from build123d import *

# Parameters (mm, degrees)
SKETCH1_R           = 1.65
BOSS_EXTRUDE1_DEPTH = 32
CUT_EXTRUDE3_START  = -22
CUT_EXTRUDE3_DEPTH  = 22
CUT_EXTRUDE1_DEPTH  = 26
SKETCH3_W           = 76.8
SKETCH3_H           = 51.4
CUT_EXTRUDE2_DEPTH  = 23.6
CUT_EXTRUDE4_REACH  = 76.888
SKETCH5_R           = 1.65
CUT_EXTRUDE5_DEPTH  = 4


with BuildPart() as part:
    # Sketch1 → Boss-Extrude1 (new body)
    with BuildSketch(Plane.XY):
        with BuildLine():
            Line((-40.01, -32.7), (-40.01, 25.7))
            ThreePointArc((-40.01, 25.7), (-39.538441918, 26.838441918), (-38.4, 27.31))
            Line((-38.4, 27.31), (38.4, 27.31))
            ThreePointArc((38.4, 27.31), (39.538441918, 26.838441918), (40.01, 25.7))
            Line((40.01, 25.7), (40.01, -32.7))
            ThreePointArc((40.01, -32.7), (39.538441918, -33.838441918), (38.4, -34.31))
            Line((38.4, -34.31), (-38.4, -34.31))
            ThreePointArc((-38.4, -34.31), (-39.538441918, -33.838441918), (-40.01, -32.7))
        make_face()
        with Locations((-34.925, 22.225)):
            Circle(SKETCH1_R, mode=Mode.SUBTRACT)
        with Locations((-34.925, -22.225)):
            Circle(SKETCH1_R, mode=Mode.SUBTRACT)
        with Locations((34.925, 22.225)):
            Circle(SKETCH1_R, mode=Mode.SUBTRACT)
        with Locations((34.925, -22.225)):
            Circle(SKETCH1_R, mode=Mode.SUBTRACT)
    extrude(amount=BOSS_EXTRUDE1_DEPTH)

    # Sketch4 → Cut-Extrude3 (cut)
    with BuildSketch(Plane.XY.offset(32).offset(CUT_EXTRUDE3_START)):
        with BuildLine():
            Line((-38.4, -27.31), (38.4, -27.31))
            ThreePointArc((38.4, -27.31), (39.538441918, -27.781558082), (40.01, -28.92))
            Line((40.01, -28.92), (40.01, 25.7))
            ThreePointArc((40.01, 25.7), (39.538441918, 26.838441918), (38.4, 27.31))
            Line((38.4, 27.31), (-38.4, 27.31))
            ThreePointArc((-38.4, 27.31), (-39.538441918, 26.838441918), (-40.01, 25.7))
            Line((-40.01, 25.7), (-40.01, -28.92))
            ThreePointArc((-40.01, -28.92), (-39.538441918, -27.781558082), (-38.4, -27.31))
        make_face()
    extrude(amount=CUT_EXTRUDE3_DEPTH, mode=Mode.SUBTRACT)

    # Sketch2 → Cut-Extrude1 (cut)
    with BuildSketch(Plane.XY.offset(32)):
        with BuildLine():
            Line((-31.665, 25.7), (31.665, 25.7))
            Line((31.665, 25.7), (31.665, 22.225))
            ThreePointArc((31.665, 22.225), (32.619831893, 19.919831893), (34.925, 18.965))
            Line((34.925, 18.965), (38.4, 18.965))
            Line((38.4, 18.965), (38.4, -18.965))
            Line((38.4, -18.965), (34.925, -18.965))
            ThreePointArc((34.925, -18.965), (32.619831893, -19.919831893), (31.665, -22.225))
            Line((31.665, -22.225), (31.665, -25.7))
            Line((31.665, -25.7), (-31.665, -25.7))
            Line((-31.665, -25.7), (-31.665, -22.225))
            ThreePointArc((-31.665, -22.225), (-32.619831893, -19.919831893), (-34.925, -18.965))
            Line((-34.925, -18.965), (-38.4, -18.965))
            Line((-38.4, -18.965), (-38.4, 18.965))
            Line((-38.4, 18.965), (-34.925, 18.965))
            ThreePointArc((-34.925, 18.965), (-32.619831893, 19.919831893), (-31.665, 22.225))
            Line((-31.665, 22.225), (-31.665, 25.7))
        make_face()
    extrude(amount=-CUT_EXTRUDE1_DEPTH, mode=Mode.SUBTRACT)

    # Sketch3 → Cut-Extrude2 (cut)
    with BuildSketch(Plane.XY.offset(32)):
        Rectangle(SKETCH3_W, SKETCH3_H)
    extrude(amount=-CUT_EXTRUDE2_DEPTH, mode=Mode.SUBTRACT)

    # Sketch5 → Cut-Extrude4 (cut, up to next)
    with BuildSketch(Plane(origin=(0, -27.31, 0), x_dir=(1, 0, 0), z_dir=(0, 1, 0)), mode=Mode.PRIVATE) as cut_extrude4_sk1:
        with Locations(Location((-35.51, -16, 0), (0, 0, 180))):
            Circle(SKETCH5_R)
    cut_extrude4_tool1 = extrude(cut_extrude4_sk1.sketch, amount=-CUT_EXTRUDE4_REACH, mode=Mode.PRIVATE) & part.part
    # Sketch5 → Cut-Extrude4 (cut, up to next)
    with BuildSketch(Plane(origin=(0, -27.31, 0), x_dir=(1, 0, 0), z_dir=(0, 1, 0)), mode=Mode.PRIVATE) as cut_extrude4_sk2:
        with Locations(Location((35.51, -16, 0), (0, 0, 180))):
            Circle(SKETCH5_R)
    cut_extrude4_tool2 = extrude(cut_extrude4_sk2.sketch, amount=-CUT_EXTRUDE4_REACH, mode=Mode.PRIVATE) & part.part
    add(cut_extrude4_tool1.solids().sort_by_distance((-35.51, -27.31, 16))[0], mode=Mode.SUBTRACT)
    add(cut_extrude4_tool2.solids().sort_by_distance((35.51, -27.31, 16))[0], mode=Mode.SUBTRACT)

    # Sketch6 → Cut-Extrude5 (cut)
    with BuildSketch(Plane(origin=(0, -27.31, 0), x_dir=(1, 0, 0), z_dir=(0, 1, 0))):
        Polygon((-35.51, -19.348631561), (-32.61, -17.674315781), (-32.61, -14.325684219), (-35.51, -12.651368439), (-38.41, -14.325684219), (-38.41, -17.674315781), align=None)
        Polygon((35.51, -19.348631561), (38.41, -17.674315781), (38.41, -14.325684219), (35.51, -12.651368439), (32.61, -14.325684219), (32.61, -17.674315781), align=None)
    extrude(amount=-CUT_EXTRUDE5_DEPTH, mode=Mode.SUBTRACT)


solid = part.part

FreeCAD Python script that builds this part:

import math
import FreeCAD as App
import Part
import Sketcher

V = App.Vector
Q = App.Units.Quantity


def add_polygon(sketch, points):
    """Adds a closed chain of lines whose ends are joined by coincident constraints."""
    first, n = sketch.GeometryCount, len(points)
    for a, b in zip(points, points[1:] + points[:1]):
        sketch.addGeometry(Part.LineSegment(App.Vector(*a, 0), App.Vector(*b, 0)), False)
    for i in range(n):
        sketch.addConstraint(Sketcher.Constraint("Coincident", first + i, 2, first + (i + 1) % n, 1))

doc = App.newDocument("Part")
params = doc.addObject("Spreadsheet::Sheet", "Params")
for row, (alias, value) in enumerate([
    ("sketch1_diameter", "3.3 mm"),
    ("sketch1_radius", "1.61 mm"),
    ("sketch1_width", "76.8 mm"),
    ("sketch1_height", "58.4 mm"),
    ("pad1_length", "32 mm"),
    ("sketch2_radius", "1.61 mm"),
    ("sketch2_width", "76.8 mm"),
    ("sketch2_height", "54.62 mm"),
    ("pocket1_length", "22 mm"),
    ("sketch3_radius", "3.26 mm"),
    ("sketch3_width", "63.33 mm"),
    ("sketch3_height", "37.93 mm"),
    ("pocket2_length", "26 mm"),
    ("sketch4_width", "76.8 mm"),
    ("sketch4_height", "51.4 mm"),
    ("pocket3_length", "23.6 mm"),
    ("sketch5_diameter", "3.3 mm"),
    ("sketch6_diameter", "3.3 mm"),
    ("pocket6_length", "4 mm"),
], start=1):
    params.set(f"A{row}", alias)
    params.set(f"B{row}", "=" + value)
    params.setAlias(f"B{row}", alias)

body = doc.addObject("PartDesign::Body", "Body")

# Sketch on XY plane
sketch1 = body.newObject("Sketcher::SketchObject", "Sketch")
sketch1.AttachmentSupport = (doc.getObject("XY_Plane"), [""])
sketch1.MapMode = "FlatFace"
sketch1.addGeometry([
    Part.LineSegment(V(-40, 25.7, 0), V(-40, -32.7, 0)),  # 0
    Part.ArcOfCircle(Part.Circle(V(-38.4, -32.7, 0), V(0, 0, 1), 1.6), math.radians(180), math.radians(270)),  # 1
    Part.LineSegment(V(-38.4, -34.3, 0), V(38.4, -34.3, 0)),  # 2
    Part.ArcOfCircle(Part.Circle(V(38.4, -32.7, 0), V(0, 0, 1), 1.6), math.radians(-90), math.radians(0)),  # 3
    Part.LineSegment(V(40, -32.7, 0), V(40, 25.7, 0)),  # 4
    Part.ArcOfCircle(Part.Circle(V(38.4, 25.7, 0), V(0, 0, 1), 1.6), math.radians(0), math.radians(90)),  # 5
    Part.LineSegment(V(38.4, 27.3, 0), V(-38.4, 27.3, 0)),  # 6
    Part.ArcOfCircle(Part.Circle(V(-38.4, 25.7, 0), V(0, 0, 1), 1.6), math.radians(90), math.radians(180)),  # 7
    Part.Circle(V(34.9, -22.2, 0), V(0, 0, 1), 1.6),  # 8
    Part.Circle(V(-34.9, -22.2, 0), V(0, 0, 1), 1.6),  # 9
    Part.Circle(V(34.9, 22.2, 0), V(0, 0, 1), 1.6),  # 10
    Part.Circle(V(-34.9, 22.2, 0), V(0, 0, 1), 1.6),  # 11
], False)
sketch1.addConstraint([
    Sketcher.Constraint("Tangent", 0, 2, 1, 1),
    Sketcher.Constraint("Tangent", 1, 2, 2, 1),
    Sketcher.Constraint("Tangent", 2, 2, 3, 1),
    Sketcher.Constraint("Tangent", 3, 2, 4, 1),
    Sketcher.Constraint("Tangent", 4, 2, 5, 1),
    Sketcher.Constraint("Tangent", 5, 2, 6, 1),
    Sketcher.Constraint("Tangent", 6, 2, 7, 1),
    Sketcher.Constraint("Tangent", 7, 2, 0, 1),
    Sketcher.Constraint("Vertical", 0),
    Sketcher.Constraint("Horizontal", 2),
    Sketcher.Constraint("Vertical", 4),
    Sketcher.Constraint("Horizontal", 6),
    Sketcher.Constraint("Equal", 1, 3),
    Sketcher.Constraint("Equal", 3, 5),
    Sketcher.Constraint("Equal", 5, 7),
    Sketcher.Constraint("Equal", 8, 9),
    Sketcher.Constraint("Equal", 9, 10),
    Sketcher.Constraint("Equal", 10, 11),
    Sketcher.Constraint("Symmetric", 9, 3, 10, 3, -1, 1),
    Sketcher.Constraint("Symmetric", 8, 3, 11, 3, -1, 1),
    Sketcher.Constraint("Symmetric", 8, 3, 9, 3, -2),
    Sketcher.Constraint("Diameter", 8, 3.3),
    Sketcher.Constraint("Radius", 1, 1.61),
    Sketcher.Constraint("DistanceX", 2, 1, 2, 2, 76.8),
    Sketcher.Constraint("DistanceY", 0, 2, 0, 1, 58.4),
    Sketcher.Constraint("DistanceX", 1, 3, -1, 1, 38.4),
    Sketcher.Constraint("DistanceY", 1, 3, -1, 1, 32.7),
    Sketcher.Constraint("DistanceX", 9, 3, 8, 3, 69.85),
    Sketcher.Constraint("DistanceY", 8, 3, 10, 3, 44.45),
])
sketch1.setExpression("Constraints[21]", "Params.sketch1_diameter")
sketch1.setExpression("Constraints[22]", "Params.sketch1_radius")
sketch1.setExpression("Constraints[23]", "Params.sketch1_width")
sketch1.setExpression("Constraints[24]", "Params.sketch1_height")
pad1 = body.newObject("PartDesign::Pad", "Pad")
pad1.Profile = sketch1
pad1.setExpression("Length", "Params.pad1_length")

# Sketch on XY plane
sketch2 = body.newObject("Sketcher::SketchObject", "Sketch001")
sketch2.AttachmentSupport = (doc.getObject("XY_Plane"), [""])
sketch2.MapMode = "FlatFace"
sketch2.AttachmentOffset = App.Placement(V(0, 0, 10), App.Rotation())
sketch2.addGeometry([
    Part.LineSegment(V(-38.4, -27.3, 0), V(38.4, -27.3, 0)),  # 0
    Part.ArcOfCircle(Part.Circle(V(38.4, -28.9, 0), V(0, 0, 1), 1.6), math.radians(0), math.radians(90)),  # 1
    Part.LineSegment(V(40, -28.9, 0), V(40, 25.7, 0)),  # 2
    Part.ArcOfCircle(Part.Circle(V(38.4, 25.7, 0), V(0, 0, 1), 1.6), math.radians(0), math.radians(90)),  # 3
    Part.LineSegment(V(38.4, 27.3, 0), V(-38.4, 27.3, 0)),  # 4
    Part.ArcOfCircle(Part.Circle(V(-38.4, 25.7, 0), V(0, 0, 1), 1.6), math.radians(90), math.radians(180)),  # 5
    Part.LineSegment(V(-40, 25.7, 0), V(-40, -28.9, 0)),  # 6
    Part.ArcOfCircle(Part.Circle(V(-38.4, -28.9, 0), V(0, 0, 1), 1.6), math.radians(90), math.radians(180)),  # 7
], False)
sketch2.addConstraint([
    Sketcher.Constraint("Tangent", 0, 2, 1, 2),
    Sketcher.Constraint("Tangent", 1, 1, 2, 1),
    Sketcher.Constraint("Tangent", 2, 2, 3, 1),
    Sketcher.Constraint("Tangent", 3, 2, 4, 1),
    Sketcher.Constraint("Tangent", 4, 2, 5, 1),
    Sketcher.Constraint("Tangent", 5, 2, 6, 1),
    Sketcher.Constraint("Tangent", 6, 2, 7, 2),
    Sketcher.Constraint("Tangent", 7, 1, 0, 1),
    Sketcher.Constraint("Horizontal", 0),
    Sketcher.Constraint("Vertical", 2),
    Sketcher.Constraint("Horizontal", 4),
    Sketcher.Constraint("Vertical", 6),
    Sketcher.Constraint("Equal", 1, 3),
    Sketcher.Constraint("Equal", 3, 5),
    Sketcher.Constraint("Equal", 5, 7),
    Sketcher.Constraint("Symmetric", 0, 2, 4, 2, -1, 1),
    Sketcher.Constraint("Radius", 1, 1.61),
    Sketcher.Constraint("DistanceX", 0, 1, 0, 2, 76.8),
    Sketcher.Constraint("DistanceY", 2, 1, 2, 2, 54.62),
])
sketch2.setExpression("Constraints[16]", "Params.sketch2_radius")
sketch2.setExpression("Constraints[17]", "Params.sketch2_width")
sketch2.setExpression("Constraints[18]", "Params.sketch2_height")
pocket1 = body.newObject("PartDesign::Pocket", "Pocket")
pocket1.Profile = sketch2
pocket1.setExpression("Length", "Params.pocket1_length")
pocket1.Reversed = True

# Sketch on XY plane
sketch3 = body.newObject("Sketcher::SketchObject", "Sketch002")
sketch3.AttachmentSupport = (doc.getObject("XY_Plane"), [""])
sketch3.MapMode = "FlatFace"
sketch3.AttachmentOffset = App.Placement(V(0, 0, 32), App.Rotation())
sketch3.addGeometry([
    Part.LineSegment(V(31.7, 25.7, 0), V(-31.7, 25.7, 0)),  # 0
    Part.LineSegment(V(-31.7, 25.7, 0), V(-31.7, 22.2, 0)),  # 1
    Part.ArcOfCircle(Part.Circle(V(-34.9, 22.2, 0), V(0, 0, 1), 3.3), math.radians(-90), math.radians(0)),  # 2
    Part.LineSegment(V(-34.9, 19, 0), V(-38.4, 19, 0)),  # 3
    Part.LineSegment(V(-38.4, 19, 0), V(-38.4, -19, 0)),  # 4
    Part.LineSegment(V(-38.4, -19, 0), V(-34.9, -19, 0)),  # 5
    Part.ArcOfCircle(Part.Circle(V(-34.9, -22.2, 0), V(0, 0, 1), 3.3), math.radians(0), math.radians(90)),  # 6
    Part.LineSegment(V(-31.7, -22.2, 0), V(-31.7, -25.7, 0)),  # 7
    Part.LineSegment(V(-31.7, -25.7, 0), V(31.7, -25.7, 0)),  # 8
    Part.LineSegment(V(31.7, -25.7, 0), V(31.7, -22.2, 0)),  # 9
    Part.ArcOfCircle(Part.Circle(V(34.9, -22.2, 0), V(0, 0, 1), 3.3), math.radians(90), math.radians(180)),  # 10
    Part.LineSegment(V(34.9, -19, 0), V(38.4, -19, 0)),  # 11
    Part.LineSegment(V(38.4, -19, 0), V(38.4, 19, 0)),  # 12
    Part.LineSegment(V(38.4, 19, 0), V(34.9, 19, 0)),  # 13
    Part.ArcOfCircle(Part.Circle(V(34.9, 22.2, 0), V(0, 0, 1), 3.3), math.radians(180), math.radians(270)),  # 14
    Part.LineSegment(V(31.7, 22.2, 0), V(31.7, 25.7, 0)),  # 15
], False)
sketch3.addConstraint([
    Sketcher.Constraint("Coincident", 0, 2, 1, 1),
    Sketcher.Constraint("Tangent", 1, 2, 2, 2),
    Sketcher.Constraint("Tangent", 2, 1, 3, 1),
    Sketcher.Constraint("Coincident", 3, 2, 4, 1),
    Sketcher.Constraint("Coincident", 4, 2, 5, 1),
    Sketcher.Constraint("Tangent", 5, 2, 6, 2),
    Sketcher.Constraint("Tangent", 6, 1, 7, 1),
    Sketcher.Constraint("Coincident", 7, 2, 8, 1),
    Sketcher.Constraint("Coincident", 8, 2, 9, 1),
    Sketcher.Constraint("Tangent", 9, 2, 10, 2),
    Sketcher.Constraint("Tangent", 10, 1, 11, 1),
    Sketcher.Constraint("Coincident", 11, 2, 12, 1),
    Sketcher.Constraint("Coincident", 12, 2, 13, 1),
    Sketcher.Constraint("Tangent", 13, 2, 14, 2),
    Sketcher.Constraint("Tangent", 14, 1, 15, 1),
    Sketcher.Constraint("Coincident", 15, 2, 0, 1),
    Sketcher.Constraint("Horizontal", 0),
    Sketcher.Constraint("Vertical", 1),
    Sketcher.Constraint("Horizontal", 3),
    Sketcher.Constraint("Vertical", 4),
    Sketcher.Constraint("Horizontal", 5),
    Sketcher.Constraint("Vertical", 7),
    Sketcher.Constraint("Horizontal", 8),
    Sketcher.Constraint("Vertical", 9),
    Sketcher.Constraint("Horizontal", 11),
    Sketcher.Constraint("Vertical", 12),
    Sketcher.Constraint("Horizontal", 13),
    Sketcher.Constraint("Vertical", 15),
    Sketcher.Constraint("Equal", 2, 6),
    Sketcher.Constraint("Equal", 6, 10),
    Sketcher.Constraint("Equal", 10, 14),
    Sketcher.Constraint("Symmetric", 2, 3, 10, 3, -1, 1),
    Sketcher.Constraint("Symmetric", 6, 3, 14, 3, -1, 1),
    Sketcher.Constraint("Symmetric", 6, 3, 10, 3, -2),
    Sketcher.Constraint("Equal", 5, 11),
    Sketcher.Constraint("Equal", 13, 1),
    Sketcher.Constraint("Equal", 1, 7),
    Sketcher.Constraint("Radius", 2, 3.26),
    Sketcher.Constraint("DistanceX", 0, 2, 0, 1, 63.33),
    Sketcher.Constraint("DistanceY", 4, 2, 4, 1, 37.93),
    Sketcher.Constraint("DistanceY", -1, 1, 0, 2, 25.7),
])
sketch3.setExpression("Constraints[37]", "Params.sketch3_radius")
sketch3.setExpression("Constraints[38]", "Params.sketch3_width")
sketch3.setExpression("Constraints[39]", "Params.sketch3_height")
pocket2 = body.newObject("PartDesign::Pocket", "Pocket001")
pocket2.Profile = sketch3
pocket2.setExpression("Length", "Params.pocket2_length")

# Sketch on XY plane
sketch4 = body.newObject("Sketcher::SketchObject", "Sketch003")
sketch4.AttachmentSupport = (doc.getObject("XY_Plane"), [""])
sketch4.MapMode = "FlatFace"
sketch4.AttachmentOffset = App.Placement(V(0, 0, 32), App.Rotation())
add_polygon(sketch4, [(-38, 26), (-38, -26), (38, -26), (38, 26)])  # lines 0-3
sketch4.addConstraint([
    Sketcher.Constraint("Vertical", 0),
    Sketcher.Constraint("Horizontal", 1),
    Sketcher.Constraint("Vertical", 2),
    Sketcher.Constraint("Horizontal", 3),
    Sketcher.Constraint("Symmetric", 0, 2, 2, 2, -1, 1),
    Sketcher.Constraint("DistanceX", 1, 1, 1, 2, 76.8),
    Sketcher.Constraint("DistanceY", 0, 2, 0, 1, 51.4),
])
sketch4.setExpression("Constraints[9]", "Params.sketch4_width")
sketch4.setExpression("Constraints[10]", "Params.sketch4_height")
pocket3 = body.newObject("PartDesign::Pocket", "Pocket002")
pocket3.Profile = sketch4
pocket3.setExpression("Length", "Params.pocket3_length")

# Sketch on XZ plane
sketch5 = body.newObject("Sketcher::SketchObject", "Sketch004")
sketch5.AttachmentSupport = (doc.getObject("XZ_Plane"), [""])
sketch5.MapMode = "FlatFace"
sketch5.AttachmentOffset = App.Placement(V(0, 0, 27.31), App.Rotation())
sketch5.addGeometry(Part.Circle(V(-35.5, 16, 0), V(0, 0, 1), 1.6), False)
sketch5.addConstraint([
    Sketcher.Constraint("Diameter", 0, 3.3),
    Sketcher.Constraint("DistanceY", -1, 1, 0, 3, 16.0),
    Sketcher.Constraint("DistanceX", 0, 3, -1, 1, 35.51),
])
sketch5.setExpression("Constraints[0]", "Params.sketch5_diameter")
pocket4 = body.newObject("PartDesign::Pocket", "Pocket003")
pocket4.Profile = sketch5
pocket4.Type = "UpToFirst"
pocket4.Reversed = True

# Sketch on XZ plane
sketch6 = body.newObject("Sketcher::SketchObject", "Sketch005")
sketch6.AttachmentSupport = (doc.getObject("XZ_Plane"), [""])
sketch6.MapMode = "FlatFace"
sketch6.AttachmentOffset = App.Placement(V(0, 0, 27.31), App.Rotation())
sketch6.addGeometry(Part.Circle(V(35.5, 16, 0), V(0, 0, 1), 1.6), False)
sketch6.addConstraint([
    Sketcher.Constraint("Diameter", 0, 3.3),
    Sketcher.Constraint("DistanceY", -1, 1, 0, 3, 16.0),
    Sketcher.Constraint("DistanceX", -1, 1, 0, 3, 35.51),
])
sketch6.setExpression("Constraints[0]", "Params.sketch6_diameter")
pocket5 = body.newObject("PartDesign::Pocket", "Pocket004")
pocket5.Profile = sketch6
pocket5.Type = "UpToFirst"
pocket5.Reversed = True

# Sketch on XZ plane
sketch7 = body.newObject("Sketcher::SketchObject", "Sketch006")
sketch7.AttachmentSupport = (doc.getObject("XZ_Plane"), [""])
sketch7.MapMode = "FlatFace"
sketch7.AttachmentOffset = App.Placement(V(0, 0, 27.31), App.Rotation())
add_polygon(sketch7, [(-35.5, 19.3), (-32.6, 17.7), (-32.6, 14.3), (-35.5, 12.7), (-38.4, 14.3), (-38.4, 17.7)])  # lines 0-5
add_polygon(sketch7, [(35.5, 19.3), (38.4, 17.7), (38.4, 14.3), (35.5, 12.7), (32.6, 14.3), (32.6, 17.7)])  # lines 6-11
sketch7.addConstraint([
    Sketcher.Constraint("Vertical", 1),
    Sketcher.Constraint("Vertical", 4),
    Sketcher.Constraint("Vertical", 7),
    Sketcher.Constraint("Vertical", 10),
    Sketcher.Constraint("Symmetric", 4, 2, 6, 2, -2),
    Sketcher.Constraint("Symmetric", 2, 2, 8, 2, -2),
    Sketcher.Constraint("Symmetric", 1, 2, 9, 2, -2),
    Sketcher.Constraint("Symmetric", 5, 2, 11, 2, -2),
    Sketcher.Constraint("Parallel", 0, 3),
    Sketcher.Constraint("Parallel", 2, 5),
    Sketcher.Constraint("Parallel", 3, 6),
    Sketcher.Constraint("Parallel", 5, 8),
    Sketcher.Constraint("Parallel", 8, 11),
    Sketcher.Constraint("Horizontal", 1, 2, 3, 2),
    Sketcher.Constraint("Horizontal", 0, 2, 4, 2),
    Sketcher.Constraint("Angle", 0, Q("-30 deg")),
    Sketcher.Constraint("DistanceX", 2, 2, 1, 2, 2.9),
    Sketcher.Constraint("DistanceX", 0, 2, -1, 1, 32.61),
    Sketcher.Constraint("DistanceY", 1, 2, 1, 1, 3.348632),
    Sketcher.Constraint("DistanceY", -1, 1, 2, 2, 12.651368),
])
pocket6 = body.newObject("PartDesign::Pocket", "Pocket005")
pocket6.Profile = sketch7
pocket6.setExpression("Length", "Params.pocket6_length")
pocket6.Reversed = True

doc.recompute()
